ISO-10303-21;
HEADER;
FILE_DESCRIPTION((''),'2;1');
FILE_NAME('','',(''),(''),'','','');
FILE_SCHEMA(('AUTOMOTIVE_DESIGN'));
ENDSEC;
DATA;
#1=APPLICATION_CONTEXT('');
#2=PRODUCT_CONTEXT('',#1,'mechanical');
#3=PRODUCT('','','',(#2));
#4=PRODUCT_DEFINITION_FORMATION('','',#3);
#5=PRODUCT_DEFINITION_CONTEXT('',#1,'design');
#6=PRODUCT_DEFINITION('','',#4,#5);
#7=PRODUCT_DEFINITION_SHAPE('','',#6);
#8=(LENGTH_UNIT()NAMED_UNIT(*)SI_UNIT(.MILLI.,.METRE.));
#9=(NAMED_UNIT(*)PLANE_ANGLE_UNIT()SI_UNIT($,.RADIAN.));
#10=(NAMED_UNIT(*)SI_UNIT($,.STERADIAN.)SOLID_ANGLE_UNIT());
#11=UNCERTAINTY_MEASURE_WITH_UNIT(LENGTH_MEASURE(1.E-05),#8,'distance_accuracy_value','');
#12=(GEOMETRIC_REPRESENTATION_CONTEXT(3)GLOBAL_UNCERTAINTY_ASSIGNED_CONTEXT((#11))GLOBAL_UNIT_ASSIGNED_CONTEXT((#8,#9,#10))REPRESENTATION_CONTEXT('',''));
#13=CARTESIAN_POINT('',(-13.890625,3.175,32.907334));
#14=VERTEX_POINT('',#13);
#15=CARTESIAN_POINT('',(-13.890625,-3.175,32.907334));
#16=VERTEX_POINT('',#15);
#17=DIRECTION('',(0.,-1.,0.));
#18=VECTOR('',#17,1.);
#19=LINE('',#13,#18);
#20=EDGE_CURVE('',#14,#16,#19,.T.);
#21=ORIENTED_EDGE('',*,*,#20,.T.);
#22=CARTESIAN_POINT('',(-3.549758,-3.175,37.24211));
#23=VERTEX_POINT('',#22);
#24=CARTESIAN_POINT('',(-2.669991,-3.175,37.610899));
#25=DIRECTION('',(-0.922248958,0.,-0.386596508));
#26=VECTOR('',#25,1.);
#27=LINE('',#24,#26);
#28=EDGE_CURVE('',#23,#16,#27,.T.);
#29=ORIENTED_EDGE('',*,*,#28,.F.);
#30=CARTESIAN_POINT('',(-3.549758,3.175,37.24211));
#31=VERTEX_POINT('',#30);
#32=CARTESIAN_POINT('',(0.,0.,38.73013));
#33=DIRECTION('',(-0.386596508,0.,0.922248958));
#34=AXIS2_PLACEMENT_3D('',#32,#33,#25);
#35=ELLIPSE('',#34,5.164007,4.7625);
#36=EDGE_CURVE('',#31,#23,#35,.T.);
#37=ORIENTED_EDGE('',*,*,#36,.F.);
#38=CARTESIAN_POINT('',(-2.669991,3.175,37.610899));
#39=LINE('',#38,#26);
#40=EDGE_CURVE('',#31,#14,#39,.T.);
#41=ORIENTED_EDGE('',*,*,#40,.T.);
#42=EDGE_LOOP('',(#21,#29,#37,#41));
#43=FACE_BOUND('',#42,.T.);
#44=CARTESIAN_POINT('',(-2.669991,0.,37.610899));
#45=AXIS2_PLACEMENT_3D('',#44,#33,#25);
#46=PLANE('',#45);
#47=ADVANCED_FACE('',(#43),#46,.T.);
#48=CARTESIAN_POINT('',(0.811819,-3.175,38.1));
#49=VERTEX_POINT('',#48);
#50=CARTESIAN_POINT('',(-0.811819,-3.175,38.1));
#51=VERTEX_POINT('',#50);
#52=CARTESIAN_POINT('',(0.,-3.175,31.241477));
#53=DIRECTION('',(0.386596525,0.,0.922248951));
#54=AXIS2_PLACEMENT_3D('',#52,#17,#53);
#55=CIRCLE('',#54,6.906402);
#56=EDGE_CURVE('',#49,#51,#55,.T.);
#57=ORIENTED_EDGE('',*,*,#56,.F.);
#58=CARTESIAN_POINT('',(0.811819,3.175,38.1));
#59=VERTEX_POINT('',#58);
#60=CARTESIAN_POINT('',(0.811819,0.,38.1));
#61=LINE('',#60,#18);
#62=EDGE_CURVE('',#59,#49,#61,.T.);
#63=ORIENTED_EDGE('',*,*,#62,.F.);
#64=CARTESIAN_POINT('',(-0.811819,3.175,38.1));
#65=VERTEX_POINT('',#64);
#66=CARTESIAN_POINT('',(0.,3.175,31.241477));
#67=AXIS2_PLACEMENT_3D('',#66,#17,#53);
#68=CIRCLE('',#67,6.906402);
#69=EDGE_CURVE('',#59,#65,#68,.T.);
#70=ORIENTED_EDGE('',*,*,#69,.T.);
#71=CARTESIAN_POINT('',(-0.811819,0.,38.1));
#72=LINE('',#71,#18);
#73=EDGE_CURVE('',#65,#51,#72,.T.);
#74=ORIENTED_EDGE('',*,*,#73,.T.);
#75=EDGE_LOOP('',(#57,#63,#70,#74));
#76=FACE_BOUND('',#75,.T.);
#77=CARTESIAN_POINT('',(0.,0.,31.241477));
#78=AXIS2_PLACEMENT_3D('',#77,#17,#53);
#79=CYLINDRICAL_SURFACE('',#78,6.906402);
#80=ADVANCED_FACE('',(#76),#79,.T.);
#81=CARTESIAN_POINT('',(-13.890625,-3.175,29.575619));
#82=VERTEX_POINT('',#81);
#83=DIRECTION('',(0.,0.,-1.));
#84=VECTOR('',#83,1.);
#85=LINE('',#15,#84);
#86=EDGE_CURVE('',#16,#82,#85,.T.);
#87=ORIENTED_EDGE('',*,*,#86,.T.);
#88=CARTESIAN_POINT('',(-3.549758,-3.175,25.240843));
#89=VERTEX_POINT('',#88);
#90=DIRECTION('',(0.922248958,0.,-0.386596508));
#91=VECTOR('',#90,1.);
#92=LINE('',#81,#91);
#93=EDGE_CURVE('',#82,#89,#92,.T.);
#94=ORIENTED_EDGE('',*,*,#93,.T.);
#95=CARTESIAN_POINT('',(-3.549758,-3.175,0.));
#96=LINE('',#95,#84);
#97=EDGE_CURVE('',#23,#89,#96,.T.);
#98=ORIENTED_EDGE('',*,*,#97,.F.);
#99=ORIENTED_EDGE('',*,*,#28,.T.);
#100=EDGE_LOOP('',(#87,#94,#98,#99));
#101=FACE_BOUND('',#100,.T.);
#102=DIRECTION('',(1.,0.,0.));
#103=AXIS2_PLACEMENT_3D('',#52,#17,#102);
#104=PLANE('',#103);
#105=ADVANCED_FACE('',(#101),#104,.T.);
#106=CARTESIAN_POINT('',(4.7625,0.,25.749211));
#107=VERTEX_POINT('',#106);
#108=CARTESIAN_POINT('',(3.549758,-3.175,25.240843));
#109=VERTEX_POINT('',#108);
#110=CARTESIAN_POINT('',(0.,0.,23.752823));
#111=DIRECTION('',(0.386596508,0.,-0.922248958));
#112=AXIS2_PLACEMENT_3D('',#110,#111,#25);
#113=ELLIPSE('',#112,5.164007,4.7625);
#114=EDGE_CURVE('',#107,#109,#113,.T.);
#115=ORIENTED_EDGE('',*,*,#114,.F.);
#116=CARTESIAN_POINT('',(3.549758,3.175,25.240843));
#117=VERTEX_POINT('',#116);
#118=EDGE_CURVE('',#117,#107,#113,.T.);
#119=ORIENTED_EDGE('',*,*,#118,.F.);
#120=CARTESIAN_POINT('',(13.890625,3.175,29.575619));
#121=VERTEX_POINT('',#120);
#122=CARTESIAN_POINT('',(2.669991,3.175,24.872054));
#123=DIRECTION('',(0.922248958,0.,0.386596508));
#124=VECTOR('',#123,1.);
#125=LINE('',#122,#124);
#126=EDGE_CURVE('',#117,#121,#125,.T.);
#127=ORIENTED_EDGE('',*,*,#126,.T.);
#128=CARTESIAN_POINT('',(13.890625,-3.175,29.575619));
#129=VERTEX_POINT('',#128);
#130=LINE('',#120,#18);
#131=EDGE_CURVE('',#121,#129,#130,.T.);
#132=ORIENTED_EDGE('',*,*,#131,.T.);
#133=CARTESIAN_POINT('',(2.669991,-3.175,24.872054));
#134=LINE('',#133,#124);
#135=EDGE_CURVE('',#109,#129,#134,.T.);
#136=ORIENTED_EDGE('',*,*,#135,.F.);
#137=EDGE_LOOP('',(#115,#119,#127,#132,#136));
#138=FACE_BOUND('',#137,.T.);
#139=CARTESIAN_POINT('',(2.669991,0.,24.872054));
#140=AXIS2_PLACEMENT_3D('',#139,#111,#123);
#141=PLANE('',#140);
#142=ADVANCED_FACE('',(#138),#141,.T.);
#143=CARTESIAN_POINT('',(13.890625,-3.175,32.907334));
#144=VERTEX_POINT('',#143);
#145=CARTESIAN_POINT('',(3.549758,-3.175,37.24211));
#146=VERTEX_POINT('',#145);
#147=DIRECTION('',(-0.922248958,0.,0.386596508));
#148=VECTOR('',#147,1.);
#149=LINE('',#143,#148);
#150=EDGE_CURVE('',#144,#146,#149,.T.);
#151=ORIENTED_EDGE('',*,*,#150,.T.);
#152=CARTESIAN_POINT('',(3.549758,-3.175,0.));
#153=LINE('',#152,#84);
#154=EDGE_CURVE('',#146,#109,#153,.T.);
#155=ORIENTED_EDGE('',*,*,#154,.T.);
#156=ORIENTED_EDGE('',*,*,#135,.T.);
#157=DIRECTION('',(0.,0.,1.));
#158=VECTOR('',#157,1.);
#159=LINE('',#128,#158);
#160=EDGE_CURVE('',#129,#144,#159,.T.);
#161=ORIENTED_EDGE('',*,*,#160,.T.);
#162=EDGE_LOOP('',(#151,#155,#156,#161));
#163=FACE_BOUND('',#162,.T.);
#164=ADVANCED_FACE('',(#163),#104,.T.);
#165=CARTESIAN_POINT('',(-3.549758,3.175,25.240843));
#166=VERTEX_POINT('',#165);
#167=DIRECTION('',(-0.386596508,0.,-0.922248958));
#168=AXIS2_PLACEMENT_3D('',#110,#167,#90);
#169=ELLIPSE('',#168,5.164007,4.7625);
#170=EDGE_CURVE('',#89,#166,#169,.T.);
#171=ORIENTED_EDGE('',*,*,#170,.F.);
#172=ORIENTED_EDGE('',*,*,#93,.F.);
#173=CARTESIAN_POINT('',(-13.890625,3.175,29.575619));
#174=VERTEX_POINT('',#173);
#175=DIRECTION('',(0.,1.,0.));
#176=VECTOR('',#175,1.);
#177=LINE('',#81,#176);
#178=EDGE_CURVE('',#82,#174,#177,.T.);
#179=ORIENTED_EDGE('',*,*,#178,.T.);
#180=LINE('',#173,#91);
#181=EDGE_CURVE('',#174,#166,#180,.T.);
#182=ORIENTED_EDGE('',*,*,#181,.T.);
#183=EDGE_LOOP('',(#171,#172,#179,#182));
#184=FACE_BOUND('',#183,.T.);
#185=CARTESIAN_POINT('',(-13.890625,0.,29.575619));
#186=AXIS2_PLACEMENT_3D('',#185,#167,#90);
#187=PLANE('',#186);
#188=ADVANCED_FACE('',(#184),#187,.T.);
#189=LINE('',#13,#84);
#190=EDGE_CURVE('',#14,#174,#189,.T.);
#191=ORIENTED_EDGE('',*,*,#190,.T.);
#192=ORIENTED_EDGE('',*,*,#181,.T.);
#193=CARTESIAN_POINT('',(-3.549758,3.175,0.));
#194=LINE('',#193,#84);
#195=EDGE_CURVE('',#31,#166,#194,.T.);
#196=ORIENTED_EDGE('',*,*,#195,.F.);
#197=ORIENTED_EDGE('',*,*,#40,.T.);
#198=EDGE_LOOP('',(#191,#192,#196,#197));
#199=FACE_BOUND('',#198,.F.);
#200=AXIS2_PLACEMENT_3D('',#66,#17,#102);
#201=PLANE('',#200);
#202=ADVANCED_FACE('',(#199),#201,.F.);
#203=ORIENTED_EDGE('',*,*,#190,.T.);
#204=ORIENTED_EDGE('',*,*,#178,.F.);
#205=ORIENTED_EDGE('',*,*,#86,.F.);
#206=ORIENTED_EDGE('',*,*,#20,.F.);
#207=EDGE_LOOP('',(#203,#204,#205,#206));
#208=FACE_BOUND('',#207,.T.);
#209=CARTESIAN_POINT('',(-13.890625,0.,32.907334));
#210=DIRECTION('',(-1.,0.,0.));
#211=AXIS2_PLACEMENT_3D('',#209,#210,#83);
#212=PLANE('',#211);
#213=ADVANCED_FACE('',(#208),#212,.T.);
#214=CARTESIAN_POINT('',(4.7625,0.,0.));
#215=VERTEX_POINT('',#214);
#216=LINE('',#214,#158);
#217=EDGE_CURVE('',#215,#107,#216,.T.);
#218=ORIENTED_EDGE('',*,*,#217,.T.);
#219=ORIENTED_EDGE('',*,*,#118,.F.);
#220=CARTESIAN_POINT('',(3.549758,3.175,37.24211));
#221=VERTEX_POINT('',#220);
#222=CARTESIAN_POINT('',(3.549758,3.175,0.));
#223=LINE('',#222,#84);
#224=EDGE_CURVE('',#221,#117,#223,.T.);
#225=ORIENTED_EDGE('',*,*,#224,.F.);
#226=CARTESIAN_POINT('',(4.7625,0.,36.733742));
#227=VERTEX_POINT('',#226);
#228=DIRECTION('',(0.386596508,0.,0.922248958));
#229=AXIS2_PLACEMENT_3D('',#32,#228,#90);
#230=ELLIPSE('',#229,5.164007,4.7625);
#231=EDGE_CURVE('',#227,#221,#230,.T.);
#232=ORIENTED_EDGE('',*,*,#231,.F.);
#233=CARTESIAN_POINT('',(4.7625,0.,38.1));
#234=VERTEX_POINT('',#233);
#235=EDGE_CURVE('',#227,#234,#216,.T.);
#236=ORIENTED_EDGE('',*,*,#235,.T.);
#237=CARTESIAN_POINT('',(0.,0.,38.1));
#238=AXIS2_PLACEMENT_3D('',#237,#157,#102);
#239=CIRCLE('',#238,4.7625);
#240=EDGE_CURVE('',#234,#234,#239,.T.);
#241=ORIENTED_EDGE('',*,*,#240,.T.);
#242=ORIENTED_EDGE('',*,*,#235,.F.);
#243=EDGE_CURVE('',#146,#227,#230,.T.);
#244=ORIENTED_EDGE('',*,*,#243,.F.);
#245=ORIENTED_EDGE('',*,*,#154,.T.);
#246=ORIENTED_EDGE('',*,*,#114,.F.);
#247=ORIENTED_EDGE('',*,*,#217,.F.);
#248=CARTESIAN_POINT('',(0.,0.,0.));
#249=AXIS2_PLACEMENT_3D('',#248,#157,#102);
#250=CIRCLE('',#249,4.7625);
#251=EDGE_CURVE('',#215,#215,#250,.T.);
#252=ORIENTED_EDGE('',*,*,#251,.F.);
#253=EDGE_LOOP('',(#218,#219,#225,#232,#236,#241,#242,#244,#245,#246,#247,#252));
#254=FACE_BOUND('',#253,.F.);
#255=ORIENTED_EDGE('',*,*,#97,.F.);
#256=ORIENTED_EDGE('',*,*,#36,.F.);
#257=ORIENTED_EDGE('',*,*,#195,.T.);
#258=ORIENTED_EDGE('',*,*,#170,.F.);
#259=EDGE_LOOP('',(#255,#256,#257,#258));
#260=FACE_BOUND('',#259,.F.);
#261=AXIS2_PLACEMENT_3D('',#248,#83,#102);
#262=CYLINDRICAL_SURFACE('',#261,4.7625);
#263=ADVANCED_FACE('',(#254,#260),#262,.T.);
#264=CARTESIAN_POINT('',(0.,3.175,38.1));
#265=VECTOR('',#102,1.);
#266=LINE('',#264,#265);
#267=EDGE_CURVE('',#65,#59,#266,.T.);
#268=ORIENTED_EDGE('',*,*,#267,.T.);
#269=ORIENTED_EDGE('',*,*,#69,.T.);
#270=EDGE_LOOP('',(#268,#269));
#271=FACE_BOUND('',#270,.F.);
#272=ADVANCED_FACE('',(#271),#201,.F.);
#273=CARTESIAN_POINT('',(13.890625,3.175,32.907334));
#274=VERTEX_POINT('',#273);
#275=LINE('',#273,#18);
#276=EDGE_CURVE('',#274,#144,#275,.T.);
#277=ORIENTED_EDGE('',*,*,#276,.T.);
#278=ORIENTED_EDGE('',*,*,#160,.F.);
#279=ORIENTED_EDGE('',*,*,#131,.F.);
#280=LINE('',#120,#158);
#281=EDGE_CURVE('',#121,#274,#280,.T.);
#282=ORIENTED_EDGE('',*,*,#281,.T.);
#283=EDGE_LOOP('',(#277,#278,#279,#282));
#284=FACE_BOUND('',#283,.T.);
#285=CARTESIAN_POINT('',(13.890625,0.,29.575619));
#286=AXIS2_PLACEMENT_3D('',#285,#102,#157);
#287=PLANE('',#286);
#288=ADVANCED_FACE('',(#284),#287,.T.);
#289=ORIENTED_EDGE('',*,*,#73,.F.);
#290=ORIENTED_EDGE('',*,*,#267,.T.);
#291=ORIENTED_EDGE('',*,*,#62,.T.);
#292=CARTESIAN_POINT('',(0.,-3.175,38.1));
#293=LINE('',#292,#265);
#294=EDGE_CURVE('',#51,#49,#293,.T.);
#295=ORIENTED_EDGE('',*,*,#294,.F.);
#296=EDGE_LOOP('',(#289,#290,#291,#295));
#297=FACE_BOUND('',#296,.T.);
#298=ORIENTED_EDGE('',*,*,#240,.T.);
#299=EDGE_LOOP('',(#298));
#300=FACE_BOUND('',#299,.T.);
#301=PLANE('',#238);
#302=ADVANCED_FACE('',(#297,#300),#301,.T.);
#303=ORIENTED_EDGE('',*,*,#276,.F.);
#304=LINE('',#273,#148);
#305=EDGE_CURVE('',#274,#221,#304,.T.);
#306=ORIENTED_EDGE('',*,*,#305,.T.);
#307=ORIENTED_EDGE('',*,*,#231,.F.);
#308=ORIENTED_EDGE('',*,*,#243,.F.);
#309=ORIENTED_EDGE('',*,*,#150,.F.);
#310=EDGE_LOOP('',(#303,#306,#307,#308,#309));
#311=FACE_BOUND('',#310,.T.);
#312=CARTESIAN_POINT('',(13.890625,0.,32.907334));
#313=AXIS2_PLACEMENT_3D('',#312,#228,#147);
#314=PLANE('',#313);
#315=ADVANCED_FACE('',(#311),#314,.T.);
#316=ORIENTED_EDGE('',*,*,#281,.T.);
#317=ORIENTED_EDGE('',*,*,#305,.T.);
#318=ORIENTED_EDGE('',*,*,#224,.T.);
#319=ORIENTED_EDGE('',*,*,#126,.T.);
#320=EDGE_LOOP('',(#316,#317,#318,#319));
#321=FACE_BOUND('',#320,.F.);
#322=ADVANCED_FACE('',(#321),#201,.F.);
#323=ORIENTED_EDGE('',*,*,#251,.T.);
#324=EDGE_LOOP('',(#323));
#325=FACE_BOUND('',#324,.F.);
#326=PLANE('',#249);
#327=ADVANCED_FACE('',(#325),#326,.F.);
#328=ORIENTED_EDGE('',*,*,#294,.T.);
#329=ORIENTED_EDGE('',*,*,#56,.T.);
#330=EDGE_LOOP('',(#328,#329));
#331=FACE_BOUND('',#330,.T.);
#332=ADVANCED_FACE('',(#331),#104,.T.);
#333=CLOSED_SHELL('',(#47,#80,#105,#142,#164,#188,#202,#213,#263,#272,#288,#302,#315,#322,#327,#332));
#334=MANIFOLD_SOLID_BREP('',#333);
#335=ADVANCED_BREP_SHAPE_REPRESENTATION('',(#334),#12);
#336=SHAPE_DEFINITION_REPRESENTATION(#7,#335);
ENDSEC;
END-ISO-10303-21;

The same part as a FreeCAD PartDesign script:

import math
import FreeCAD as App
import Part
import Sketcher
from FreeCAD import Vector
Q = App.Units.Quantity

doc = App.newDocument("Part")
params = doc.addObject("Spreadsheet::Sheet", "Params")
for row, (alias, value) in enumerate([
    ("sketch1_diameter", "0.375 in"),
    ("pad1_length", "1.5 in"),
    ("sketch2_length", "0.479 in"),
    ("pad2_length", "0.25 in"),
], start=1):
    params.set(f"A{row}", alias)
    params.set(f"B{row}", "=" + value)
    params.setAlias(f"B{row}", alias)

body = doc.addObject("PartDesign::Body", "Body")

# Sketch on XY plane
sketch1 = body.newObject("Sketcher::SketchObject", "Sketch")
sketch1.AttachmentSupport = (doc.getObject("XY_Plane"), [""])
sketch1.MapMode = "FlatFace"
sketch1.addGeometry(Part.Circle(Vector(0, 0, 0), Vector(0, 0, 1), 4.7625), False)
sketch1.addConstraint([
    Sketcher.Constraint("Coincident", 0, 3, -1, 1),
    Sketcher.Constraint("Diameter", 0, Q("0.375 in")),
])
sketch1.setExpression("Constraints[1]", "Params.sketch1_diameter")
pad1 = body.newObject("PartDesign::Pad", "Pad")
pad1.Profile = sketch1
pad1.setExpression("Length", "Params.pad1_length")

# Sketch on XZ plane
sketch2 = body.newObject("Sketcher::SketchObject", "Sketch001")
sketch2.AttachmentSupport = (doc.getObject("XZ_Plane"), [""])
sketch2.MapMode = "FlatFace"
sketch2.addGeometry([
    Part.LineSegment(Vector(2.669991, 24.872054, 0), Vector(13.890625, 29.575619, 0)),  # 0
    Part.LineSegment(Vector(13.890625, 29.575619, 0), Vector(13.890625, 32.907334, 0)),  # 1
    Part.LineSegment(Vector(13.890625, 32.907334, 0), Vector(2.669991, 37.610899, 0)),  # 2
    Part.ArcOfCircle(Part.Circle(Vector(0, 31.241477, 0), Vector(0, 0, 1), 6.906402), math.radians(67.25711), math.radians(112.74289)),  # 3
    Part.LineSegment(Vector(-2.669991, 37.610899, 0), Vector(-13.890625, 32.907334, 0)),  # 4
    Part.LineSegment(Vector(-13.890625, 32.907334, 0), Vector(-13.890625, 29.575619, 0)),  # 5
    Part.LineSegment(Vector(-13.890625, 29.575619, 0), Vector(-2.669991, 24.872054, 0)),  # 6
    Part.ArcOfCircle(Part.Circle(Vector(0, 31.241476, 0), Vector(0, 0, 1), 6.906402), math.radians(-112.74289), math.radians(-67.25711)),  # 7
], False)
sketch2.addConstraint([
    Sketcher.Constraint("Coincident", 0, 2, 1, 1),
    Sketcher.Constraint("Coincident", 1, 2, 2, 1),
    Sketcher.Constraint("Tangent", 2, 2, 3, 1),
    Sketcher.Constraint("Tangent", 3, 2, 4, 1),
    Sketcher.Constraint("Coincident", 4, 2, 5, 1),
    Sketcher.Constraint("Coincident", 5, 2, 6, 1),
    Sketcher.Constraint("Tangent", 6, 2, 7, 1),
    Sketcher.Constraint("Tangent", 7, 2, 0, 1),
    Sketcher.Constraint("Vertical", 1),
    Sketcher.Constraint("Vertical", 5),
    Sketcher.Constraint("Coincident", 7, 3, 3, 3),
    Sketcher.Constraint("Equal", 3, 7),
    Sketcher.Constraint("Symmetric", 2, 2, 3, 2, -2),
    Sketcher.Constraint("Symmetric", 0, 2, 5, 2, -2),
    Sketcher.Constraint("Parallel", 0, 4),
    Sketcher.Constraint("Radius", 3, Q("6.906402 mm")),
    Sketcher.Constraint("Distance", 0, Q("0.479 in")),
    Sketcher.Constraint("DistanceX", -1, 1, 0, 2, Q("0.546875 in")),
    Sketcher.Constraint("DistanceY", -1, 1, 2, 2, Q("37.610899 mm")),
])
sketch2.setExpression("Constraints[16]", "Params.sketch2_length")
pad2 = body.newObject("PartDesign::Pad", "Pad001")
pad2.Profile = sketch2
pad2.setExpression("Length", "Params.pad2_length")
pad2.Midplane = True

doc.recompute()
